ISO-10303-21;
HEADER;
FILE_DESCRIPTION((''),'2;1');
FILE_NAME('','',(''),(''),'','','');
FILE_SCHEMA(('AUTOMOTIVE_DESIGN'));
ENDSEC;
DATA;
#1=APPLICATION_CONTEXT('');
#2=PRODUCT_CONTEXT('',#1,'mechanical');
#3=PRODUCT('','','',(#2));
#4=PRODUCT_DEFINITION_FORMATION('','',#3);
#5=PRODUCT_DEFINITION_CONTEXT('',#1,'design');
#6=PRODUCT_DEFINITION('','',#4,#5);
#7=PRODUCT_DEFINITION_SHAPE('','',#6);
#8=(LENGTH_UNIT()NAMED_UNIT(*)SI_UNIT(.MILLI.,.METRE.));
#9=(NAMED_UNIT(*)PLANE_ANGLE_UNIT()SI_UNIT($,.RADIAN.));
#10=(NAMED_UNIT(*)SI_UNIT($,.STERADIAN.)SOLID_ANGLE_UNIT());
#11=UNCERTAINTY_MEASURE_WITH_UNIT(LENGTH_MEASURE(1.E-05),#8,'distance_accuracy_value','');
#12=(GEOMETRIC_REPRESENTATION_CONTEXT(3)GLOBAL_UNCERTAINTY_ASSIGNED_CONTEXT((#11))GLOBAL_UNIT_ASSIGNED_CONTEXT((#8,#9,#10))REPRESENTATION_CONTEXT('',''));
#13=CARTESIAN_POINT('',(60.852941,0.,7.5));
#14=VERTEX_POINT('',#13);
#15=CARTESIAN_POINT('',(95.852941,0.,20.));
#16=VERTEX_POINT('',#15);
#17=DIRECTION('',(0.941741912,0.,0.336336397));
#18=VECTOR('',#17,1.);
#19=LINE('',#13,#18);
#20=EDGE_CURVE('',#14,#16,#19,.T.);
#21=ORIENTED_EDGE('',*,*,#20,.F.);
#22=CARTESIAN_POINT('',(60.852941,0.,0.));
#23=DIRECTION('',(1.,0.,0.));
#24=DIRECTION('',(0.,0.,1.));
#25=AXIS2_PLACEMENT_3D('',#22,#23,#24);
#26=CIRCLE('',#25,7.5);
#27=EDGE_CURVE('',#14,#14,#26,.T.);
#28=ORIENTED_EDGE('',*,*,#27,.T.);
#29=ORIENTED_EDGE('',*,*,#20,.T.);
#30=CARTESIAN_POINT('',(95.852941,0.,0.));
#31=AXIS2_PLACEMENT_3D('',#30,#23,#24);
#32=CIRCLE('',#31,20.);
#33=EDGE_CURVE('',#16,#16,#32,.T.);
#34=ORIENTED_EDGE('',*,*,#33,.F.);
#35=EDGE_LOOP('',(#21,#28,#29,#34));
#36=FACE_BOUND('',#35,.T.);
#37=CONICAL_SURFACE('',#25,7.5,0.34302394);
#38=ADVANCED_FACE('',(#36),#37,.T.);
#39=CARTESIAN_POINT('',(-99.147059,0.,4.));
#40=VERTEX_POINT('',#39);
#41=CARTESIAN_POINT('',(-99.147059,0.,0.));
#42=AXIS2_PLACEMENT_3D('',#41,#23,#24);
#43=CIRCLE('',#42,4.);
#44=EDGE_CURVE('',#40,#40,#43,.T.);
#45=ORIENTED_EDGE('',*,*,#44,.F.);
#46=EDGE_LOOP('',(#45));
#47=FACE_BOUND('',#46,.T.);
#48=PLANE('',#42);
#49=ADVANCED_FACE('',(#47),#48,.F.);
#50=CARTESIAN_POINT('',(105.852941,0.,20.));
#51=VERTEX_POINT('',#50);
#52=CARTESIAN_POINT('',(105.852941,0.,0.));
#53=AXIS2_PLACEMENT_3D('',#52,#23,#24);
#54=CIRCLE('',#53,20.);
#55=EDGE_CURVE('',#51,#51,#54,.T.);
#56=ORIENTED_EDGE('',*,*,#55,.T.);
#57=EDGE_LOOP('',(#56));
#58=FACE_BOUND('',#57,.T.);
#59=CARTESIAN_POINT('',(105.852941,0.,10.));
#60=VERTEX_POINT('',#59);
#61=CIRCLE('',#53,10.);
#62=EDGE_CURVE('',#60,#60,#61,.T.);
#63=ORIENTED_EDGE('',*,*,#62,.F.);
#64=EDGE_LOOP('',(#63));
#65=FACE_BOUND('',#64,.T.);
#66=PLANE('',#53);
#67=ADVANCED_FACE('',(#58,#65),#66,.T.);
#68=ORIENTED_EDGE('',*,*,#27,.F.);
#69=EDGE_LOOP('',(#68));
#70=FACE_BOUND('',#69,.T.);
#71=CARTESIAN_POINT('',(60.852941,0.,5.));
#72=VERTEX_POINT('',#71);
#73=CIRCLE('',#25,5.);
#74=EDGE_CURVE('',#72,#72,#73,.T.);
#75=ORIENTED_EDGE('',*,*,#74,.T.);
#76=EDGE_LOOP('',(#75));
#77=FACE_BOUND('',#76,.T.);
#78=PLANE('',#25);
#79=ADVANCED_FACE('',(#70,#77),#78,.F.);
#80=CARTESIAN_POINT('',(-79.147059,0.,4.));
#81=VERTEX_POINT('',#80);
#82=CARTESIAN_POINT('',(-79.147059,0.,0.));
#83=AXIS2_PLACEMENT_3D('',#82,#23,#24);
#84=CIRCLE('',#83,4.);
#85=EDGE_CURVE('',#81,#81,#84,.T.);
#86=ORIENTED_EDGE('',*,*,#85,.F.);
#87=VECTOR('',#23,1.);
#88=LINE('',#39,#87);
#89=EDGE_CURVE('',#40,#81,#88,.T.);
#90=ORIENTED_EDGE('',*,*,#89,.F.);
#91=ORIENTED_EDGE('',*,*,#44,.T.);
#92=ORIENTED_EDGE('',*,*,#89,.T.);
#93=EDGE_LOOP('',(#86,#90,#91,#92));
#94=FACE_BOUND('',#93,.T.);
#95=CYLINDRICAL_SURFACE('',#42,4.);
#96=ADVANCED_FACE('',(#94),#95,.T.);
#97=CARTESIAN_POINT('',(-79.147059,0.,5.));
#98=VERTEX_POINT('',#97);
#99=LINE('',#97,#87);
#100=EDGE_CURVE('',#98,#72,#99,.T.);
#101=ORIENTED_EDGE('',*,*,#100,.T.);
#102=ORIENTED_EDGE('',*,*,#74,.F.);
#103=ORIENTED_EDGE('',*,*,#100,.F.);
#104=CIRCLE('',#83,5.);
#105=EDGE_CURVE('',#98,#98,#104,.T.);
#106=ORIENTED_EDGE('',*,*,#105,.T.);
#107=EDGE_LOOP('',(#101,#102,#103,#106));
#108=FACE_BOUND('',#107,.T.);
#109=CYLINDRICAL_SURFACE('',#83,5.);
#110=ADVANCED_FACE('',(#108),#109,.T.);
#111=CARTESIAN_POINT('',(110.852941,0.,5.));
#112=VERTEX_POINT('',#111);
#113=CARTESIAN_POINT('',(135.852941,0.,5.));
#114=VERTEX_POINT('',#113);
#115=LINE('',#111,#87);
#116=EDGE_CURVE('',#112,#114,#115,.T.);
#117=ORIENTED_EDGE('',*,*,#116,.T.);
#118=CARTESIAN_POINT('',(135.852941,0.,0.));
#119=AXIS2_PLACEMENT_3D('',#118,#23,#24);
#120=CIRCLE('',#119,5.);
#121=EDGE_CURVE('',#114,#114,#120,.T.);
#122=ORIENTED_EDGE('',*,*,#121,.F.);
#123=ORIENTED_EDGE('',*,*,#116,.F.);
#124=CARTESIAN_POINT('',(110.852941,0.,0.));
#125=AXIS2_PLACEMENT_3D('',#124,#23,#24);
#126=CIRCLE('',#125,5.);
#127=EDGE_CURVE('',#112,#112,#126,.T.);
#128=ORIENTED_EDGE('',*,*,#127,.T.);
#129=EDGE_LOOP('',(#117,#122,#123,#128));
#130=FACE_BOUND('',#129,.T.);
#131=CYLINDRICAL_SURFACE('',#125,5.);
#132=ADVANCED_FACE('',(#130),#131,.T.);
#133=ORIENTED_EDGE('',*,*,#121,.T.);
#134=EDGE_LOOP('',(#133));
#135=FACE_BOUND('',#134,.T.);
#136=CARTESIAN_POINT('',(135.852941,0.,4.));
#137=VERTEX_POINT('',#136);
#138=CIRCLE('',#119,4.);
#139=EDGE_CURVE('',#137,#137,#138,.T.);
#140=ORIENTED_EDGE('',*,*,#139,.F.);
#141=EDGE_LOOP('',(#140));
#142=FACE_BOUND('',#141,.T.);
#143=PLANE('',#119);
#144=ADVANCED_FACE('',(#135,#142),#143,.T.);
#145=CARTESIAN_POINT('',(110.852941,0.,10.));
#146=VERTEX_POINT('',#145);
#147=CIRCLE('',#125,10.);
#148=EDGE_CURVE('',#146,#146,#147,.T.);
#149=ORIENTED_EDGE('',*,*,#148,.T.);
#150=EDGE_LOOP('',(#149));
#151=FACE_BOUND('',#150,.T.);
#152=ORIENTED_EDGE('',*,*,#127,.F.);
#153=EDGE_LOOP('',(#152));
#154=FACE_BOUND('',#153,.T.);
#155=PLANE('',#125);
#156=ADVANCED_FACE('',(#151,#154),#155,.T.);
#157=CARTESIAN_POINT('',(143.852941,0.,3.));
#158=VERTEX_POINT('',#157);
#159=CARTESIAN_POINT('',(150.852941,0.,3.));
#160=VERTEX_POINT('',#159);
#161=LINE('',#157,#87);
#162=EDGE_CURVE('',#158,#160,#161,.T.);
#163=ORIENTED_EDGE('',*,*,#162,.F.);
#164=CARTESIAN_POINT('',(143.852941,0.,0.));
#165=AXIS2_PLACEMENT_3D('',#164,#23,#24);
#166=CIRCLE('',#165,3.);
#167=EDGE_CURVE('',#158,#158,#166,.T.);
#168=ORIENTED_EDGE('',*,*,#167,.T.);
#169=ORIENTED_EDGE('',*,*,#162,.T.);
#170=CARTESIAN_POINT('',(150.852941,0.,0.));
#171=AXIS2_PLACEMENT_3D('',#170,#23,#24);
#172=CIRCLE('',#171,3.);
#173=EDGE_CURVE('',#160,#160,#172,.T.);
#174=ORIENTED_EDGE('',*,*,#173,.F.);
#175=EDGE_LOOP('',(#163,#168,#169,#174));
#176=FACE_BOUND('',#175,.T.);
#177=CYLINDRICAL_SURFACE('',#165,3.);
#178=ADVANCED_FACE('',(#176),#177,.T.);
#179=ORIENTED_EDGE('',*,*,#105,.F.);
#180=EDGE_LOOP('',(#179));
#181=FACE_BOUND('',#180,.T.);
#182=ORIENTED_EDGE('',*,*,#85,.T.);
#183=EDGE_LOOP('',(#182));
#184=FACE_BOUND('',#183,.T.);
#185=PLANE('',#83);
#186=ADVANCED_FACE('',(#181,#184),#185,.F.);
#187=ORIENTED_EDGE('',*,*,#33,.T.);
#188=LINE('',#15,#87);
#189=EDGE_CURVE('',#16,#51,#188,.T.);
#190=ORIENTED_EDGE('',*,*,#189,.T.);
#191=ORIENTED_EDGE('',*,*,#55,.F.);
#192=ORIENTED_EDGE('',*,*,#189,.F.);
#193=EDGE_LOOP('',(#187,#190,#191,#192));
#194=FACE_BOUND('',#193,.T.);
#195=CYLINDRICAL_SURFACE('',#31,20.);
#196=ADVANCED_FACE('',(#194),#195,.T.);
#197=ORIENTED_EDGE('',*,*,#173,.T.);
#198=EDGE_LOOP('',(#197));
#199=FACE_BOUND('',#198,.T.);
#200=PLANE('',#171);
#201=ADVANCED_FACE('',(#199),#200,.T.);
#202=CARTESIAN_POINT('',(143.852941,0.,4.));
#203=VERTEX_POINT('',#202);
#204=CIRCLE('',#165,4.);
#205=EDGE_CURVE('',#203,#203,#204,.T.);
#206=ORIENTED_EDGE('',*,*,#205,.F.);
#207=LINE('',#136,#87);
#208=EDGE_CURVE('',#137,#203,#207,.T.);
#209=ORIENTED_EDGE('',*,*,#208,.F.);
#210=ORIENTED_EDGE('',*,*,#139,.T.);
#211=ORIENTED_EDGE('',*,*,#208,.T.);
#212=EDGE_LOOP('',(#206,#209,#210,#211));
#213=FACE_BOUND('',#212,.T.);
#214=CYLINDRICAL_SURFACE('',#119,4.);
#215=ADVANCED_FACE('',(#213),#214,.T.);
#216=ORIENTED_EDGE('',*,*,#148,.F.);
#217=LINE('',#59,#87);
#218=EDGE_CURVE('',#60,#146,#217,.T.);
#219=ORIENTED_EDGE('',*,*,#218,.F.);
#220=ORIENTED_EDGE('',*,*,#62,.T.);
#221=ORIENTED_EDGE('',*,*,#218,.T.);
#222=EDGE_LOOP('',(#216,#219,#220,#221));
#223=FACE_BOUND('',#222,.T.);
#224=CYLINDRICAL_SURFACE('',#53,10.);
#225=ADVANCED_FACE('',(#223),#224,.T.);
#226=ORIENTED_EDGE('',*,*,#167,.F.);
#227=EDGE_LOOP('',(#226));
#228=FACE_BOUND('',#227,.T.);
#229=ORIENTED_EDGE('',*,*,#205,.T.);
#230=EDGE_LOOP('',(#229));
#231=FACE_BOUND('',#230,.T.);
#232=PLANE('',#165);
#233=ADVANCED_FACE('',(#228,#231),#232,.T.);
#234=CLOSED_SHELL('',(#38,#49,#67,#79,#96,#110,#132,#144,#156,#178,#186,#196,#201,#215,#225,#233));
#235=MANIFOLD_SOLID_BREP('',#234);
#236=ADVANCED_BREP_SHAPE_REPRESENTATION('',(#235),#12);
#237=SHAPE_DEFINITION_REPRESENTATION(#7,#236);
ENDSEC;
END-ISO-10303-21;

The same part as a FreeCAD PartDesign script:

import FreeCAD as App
import Part
import Sketcher


def add_polygon(sketch, points):
    """Adds a closed chain of lines whose ends are joined by coincident constraints."""
    first, n = sketch.GeometryCount, len(points)
    for a, b in zip(points, points[1:] + points[:1]):
        sketch.addGeometry(Part.LineSegment(App.Vector(*a, 0), App.Vector(*b, 0)), False)
    for i in range(n):
        sketch.addConstraint(Sketcher.Constraint("Coincident", first + i, 2, first + (i + 1) % n, 1))

doc = App.newDocument("Part")
params = doc.addObject("Spreadsheet::Sheet", "Params")
for row, (alias, value) in enumerate([
    ("sketch1_width", "250 mm"),
    ("sketch1_width2", "7 mm"),
    ("sketch1_width3", "8 mm"),
    ("sketch1_width4", "25 mm"),
    ("sketch1_width5", "5 mm"),
    ("revolution_angle", "360 deg"),
], start=1):
    params.set(f"A{row}", alias)
    params.set(f"B{row}", "=" + value)
    params.setAlias(f"B{row}", alias)

body = doc.addObject("PartDesign::Body", "Body")

# Sketch on XY plane
sketch1 = doc.addObject("Sketcher::SketchObject", "Sketch")
body.addObject(sketch1)
sketch1.AttachmentSupport = (doc.XY_Plane, [""])
sketch1.MapMode = "FlatFace"
add_polygon(sketch1, [(-99.147059, 4), (-99.147059, 0), (150.852941, 0), (150.852941, 3), (143.852941, 3), (143.852941, 4), (135.852941, 4), (135.852941, 5), (110.852941, 5), (110.852941, 10), (105.852941, 10), (105.852941, 20), (95.852941, 20), (60.852941, 7.5), (60.852941, 5), (-79.147059, 5), (-79.147059, 4)])  # lines 0-16
sketch1.addConstraint([
    Sketcher.Constraint("Vertical", 0),
    Sketcher.Constraint("Horizontal", 1),
    Sketcher.Constraint("Vertical", 2),
    Sketcher.Constraint("Horizontal", 3),
    Sketcher.Constraint("Vertical", 4),
    Sketcher.Constraint("Horizontal", 5),
    Sketcher.Constraint("Vertical", 6),
    Sketcher.Constraint("Horizontal", 7),
    Sketcher.Constraint("Vertical", 8),
    Sketcher.Constraint("Horizontal", 9),
    Sketcher.Constraint("Vertical", 10),
    Sketcher.Constraint("Horizontal", 11),
    Sketcher.Constraint("Vertical", 13),
    Sketcher.Constraint("Horizontal", 14),
    Sketcher.Constraint("Vertical", 15),
    Sketcher.Constraint("Horizontal", 16),
    Sketcher.Constraint("PointOnObject", 0, 2, -1),
    Sketcher.Constraint("Horizontal", 7, 2, 13, 2),
    Sketcher.Constraint("Horizontal", 5, 2, 15, 2),
    Sketcher.Constraint("Equal", 4, 6),
    Sketcher.Constraint("Equal", 9, 8),
    Sketcher.Constraint("Equal", 11, 10),
    Sketcher.Constraint("DistanceX", 1, 1, 1, 2, 250.0),
    Sketcher.Constraint("DistanceX", 3, 2, 3, 1, 7.0),
    Sketcher.Constraint("DistanceX", 5, 2, 5, 1, 8.0),
    Sketcher.Constraint("DistanceX", 7, 2, 7, 1, 25.0),
    Sketcher.Constraint("DistanceX", 9, 2, 9, 1, 5.0),
    Sketcher.Constraint("DistanceX", 11, 2, 11, 1, 10.0),
    Sketcher.Constraint("DistanceX", 14, 2, 14, 1, 140.0),
    Sketcher.Constraint("DistanceX", 16, 2, 16, 1, 20.0),
    Sketcher.Constraint("DistanceY", 0, 2, 0, 1, 4.0),
    Sketcher.Constraint("DistanceY", 2, 1, 2, 2, 3.0),
    Sketcher.Constraint("DistanceY", 13, 2, 13, 1, 2.5),
    Sketcher.Constraint("DistanceX", 0, 2, -1, 1, 99.147059),
])
sketch1.setExpression("Constraints[39]", "Params.sketch1_width")
sketch1.setExpression("Constraints[40]", "Params.sketch1_width2")
sketch1.setExpression("Constraints[41]", "Params.sketch1_width3")
sketch1.setExpression("Constraints[42]", "Params.sketch1_width4")
sketch1.setExpression("Constraints[43]", "Params.sketch1_width5")
revolution = doc.addObject("PartDesign::Revolution", "Revolution")
body.addObject(revolution)
revolution.Profile = sketch1
revolution.ReferenceAxis = (sketch1, ["H_Axis"])
revolution.setExpression("Angle", "Params.revolution_angle")

doc.recompute()
